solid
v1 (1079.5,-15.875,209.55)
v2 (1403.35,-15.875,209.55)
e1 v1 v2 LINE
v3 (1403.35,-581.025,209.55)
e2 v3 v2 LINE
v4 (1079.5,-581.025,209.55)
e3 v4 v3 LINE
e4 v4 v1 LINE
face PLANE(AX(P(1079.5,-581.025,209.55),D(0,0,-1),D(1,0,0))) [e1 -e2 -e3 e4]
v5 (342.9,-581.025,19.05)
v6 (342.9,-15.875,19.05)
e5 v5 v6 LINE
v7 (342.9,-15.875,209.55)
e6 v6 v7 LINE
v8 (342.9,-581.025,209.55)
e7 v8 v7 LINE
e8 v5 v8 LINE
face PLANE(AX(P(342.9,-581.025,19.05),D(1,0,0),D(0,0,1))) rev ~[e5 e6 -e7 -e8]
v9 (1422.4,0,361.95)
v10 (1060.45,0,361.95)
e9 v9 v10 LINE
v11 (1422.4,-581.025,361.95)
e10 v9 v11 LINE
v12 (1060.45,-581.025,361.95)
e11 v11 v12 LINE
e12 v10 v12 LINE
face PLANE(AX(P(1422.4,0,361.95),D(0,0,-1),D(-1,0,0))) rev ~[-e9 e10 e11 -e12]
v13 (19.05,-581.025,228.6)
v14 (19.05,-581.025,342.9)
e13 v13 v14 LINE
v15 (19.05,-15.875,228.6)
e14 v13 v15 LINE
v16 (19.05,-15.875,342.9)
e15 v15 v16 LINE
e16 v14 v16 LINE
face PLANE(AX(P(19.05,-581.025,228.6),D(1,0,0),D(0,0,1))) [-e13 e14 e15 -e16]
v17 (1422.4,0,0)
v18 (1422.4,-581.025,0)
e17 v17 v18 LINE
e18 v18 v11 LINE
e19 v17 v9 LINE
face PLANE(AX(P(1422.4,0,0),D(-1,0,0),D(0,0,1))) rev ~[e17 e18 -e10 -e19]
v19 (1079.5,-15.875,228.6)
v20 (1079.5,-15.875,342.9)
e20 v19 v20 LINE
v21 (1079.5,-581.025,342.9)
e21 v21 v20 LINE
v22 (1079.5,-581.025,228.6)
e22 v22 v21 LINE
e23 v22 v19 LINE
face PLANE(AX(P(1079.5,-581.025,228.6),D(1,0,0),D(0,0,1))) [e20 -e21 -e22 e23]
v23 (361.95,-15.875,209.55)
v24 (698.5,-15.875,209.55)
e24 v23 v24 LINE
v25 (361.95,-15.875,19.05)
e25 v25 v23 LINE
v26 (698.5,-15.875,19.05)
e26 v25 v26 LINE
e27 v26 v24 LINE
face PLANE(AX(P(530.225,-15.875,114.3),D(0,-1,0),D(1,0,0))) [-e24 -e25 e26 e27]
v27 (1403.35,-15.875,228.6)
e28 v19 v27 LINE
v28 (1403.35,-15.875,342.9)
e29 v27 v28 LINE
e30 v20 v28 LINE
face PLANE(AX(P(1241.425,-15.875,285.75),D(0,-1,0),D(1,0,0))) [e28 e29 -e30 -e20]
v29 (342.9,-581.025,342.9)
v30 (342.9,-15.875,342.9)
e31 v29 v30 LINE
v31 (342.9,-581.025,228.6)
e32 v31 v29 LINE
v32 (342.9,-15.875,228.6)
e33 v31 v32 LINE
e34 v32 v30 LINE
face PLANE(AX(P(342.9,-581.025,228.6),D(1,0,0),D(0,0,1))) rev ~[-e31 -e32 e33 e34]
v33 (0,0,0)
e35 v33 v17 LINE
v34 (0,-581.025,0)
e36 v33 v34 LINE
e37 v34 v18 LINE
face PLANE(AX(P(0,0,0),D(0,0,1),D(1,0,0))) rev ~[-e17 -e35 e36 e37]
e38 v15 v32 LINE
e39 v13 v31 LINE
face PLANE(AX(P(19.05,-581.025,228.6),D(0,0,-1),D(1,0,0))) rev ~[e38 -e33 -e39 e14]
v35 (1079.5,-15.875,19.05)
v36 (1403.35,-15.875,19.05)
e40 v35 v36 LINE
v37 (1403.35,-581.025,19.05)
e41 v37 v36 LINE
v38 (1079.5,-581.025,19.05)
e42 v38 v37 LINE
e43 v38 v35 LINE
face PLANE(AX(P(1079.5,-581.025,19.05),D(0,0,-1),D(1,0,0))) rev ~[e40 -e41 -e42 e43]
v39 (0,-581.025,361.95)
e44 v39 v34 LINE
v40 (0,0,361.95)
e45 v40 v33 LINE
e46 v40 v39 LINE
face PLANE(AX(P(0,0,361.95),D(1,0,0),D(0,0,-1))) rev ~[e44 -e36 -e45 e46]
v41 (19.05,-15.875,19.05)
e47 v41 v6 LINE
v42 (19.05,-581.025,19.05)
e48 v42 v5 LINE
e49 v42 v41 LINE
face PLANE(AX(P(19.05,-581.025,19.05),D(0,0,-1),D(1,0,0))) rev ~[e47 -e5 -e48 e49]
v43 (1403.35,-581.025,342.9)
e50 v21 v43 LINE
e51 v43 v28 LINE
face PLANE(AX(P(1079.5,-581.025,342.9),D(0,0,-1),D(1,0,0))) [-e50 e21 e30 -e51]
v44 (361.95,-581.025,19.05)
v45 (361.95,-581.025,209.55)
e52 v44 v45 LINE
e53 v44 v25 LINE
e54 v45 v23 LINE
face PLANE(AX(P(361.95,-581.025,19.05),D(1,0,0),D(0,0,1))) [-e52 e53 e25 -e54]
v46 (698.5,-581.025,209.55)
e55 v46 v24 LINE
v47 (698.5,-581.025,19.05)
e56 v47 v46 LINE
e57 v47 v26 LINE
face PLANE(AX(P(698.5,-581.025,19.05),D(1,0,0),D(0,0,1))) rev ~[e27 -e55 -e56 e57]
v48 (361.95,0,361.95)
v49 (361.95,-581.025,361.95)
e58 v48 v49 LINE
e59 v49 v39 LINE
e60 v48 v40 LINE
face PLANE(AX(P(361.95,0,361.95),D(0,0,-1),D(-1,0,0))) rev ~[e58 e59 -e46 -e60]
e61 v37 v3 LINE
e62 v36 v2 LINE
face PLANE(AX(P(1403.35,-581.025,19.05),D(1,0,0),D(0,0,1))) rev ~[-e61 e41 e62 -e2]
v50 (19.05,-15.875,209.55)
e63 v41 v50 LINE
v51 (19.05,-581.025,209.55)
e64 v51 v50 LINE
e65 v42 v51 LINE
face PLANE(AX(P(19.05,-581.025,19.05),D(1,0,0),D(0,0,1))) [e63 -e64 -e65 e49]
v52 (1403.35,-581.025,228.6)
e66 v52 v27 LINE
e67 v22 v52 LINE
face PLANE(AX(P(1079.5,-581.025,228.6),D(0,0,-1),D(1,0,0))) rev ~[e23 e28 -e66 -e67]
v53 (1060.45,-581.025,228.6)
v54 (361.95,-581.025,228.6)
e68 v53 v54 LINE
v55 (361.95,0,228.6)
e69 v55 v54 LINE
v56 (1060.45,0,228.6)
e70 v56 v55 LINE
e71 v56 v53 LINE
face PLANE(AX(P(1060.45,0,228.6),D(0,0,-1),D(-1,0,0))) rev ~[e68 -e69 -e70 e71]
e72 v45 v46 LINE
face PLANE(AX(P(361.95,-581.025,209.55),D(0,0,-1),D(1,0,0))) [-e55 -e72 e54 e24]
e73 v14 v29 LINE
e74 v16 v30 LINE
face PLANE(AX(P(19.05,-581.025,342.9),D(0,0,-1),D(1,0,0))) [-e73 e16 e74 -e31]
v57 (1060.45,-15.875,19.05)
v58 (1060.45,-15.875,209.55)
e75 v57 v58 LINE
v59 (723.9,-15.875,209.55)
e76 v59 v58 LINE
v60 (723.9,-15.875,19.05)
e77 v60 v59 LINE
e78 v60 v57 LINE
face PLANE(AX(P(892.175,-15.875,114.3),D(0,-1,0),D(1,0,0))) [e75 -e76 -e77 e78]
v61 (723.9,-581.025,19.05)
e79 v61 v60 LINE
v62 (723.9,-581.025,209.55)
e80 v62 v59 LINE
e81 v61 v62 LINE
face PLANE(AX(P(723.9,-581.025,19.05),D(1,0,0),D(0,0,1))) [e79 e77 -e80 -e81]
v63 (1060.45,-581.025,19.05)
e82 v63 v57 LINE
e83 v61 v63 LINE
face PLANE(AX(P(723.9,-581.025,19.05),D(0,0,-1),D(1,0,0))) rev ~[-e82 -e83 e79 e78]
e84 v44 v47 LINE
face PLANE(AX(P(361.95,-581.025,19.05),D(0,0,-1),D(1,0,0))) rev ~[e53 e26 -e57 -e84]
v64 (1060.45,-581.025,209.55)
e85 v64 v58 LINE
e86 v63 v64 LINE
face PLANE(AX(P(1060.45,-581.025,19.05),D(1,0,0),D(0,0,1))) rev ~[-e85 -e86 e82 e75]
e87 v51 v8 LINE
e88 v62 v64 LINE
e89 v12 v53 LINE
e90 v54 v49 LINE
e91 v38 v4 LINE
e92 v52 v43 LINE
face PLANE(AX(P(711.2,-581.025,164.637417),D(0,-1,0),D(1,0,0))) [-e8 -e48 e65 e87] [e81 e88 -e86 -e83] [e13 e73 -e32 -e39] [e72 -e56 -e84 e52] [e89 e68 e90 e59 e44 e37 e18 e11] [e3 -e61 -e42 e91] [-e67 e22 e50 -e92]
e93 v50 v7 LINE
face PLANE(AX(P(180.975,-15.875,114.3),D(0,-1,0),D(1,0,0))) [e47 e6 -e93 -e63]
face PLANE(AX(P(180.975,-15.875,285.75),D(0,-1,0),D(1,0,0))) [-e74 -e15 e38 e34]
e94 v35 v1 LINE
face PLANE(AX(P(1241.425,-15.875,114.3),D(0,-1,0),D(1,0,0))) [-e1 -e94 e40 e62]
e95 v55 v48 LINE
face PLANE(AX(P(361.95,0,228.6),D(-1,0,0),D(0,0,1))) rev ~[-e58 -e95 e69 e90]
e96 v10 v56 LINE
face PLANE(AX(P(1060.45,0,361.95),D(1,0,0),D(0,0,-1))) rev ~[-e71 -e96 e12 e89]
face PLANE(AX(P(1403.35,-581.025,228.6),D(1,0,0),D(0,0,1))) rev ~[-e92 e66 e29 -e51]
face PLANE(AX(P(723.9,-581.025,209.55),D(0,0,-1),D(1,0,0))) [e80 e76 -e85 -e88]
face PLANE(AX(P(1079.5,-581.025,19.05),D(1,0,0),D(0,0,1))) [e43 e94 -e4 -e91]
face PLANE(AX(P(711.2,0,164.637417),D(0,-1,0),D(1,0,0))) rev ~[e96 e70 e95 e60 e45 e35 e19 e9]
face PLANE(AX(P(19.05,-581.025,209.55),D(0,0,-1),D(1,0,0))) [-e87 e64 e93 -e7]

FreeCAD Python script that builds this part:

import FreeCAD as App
import Part
import Sketcher
from FreeCAD import Vector
Q = App.Units.Quantity


def add_polygon(sketch, points):
    """Adds a closed chain of lines whose ends are joined by coincident constraints."""
    first, n = sketch.GeometryCount, len(points)
    for a, b in zip(points, points[1:] + points[:1]):
        sketch.addGeometry(Part.LineSegment(App.Vector(*a, 0), App.Vector(*b, 0)), False)
    for i in range(n):
        sketch.addConstraint(Sketcher.Constraint("Coincident", first + i, 2, first + (i + 1) % n, 1))

doc = App.newDocument("Part")
body = doc.addObject("PartDesign::Body", "Body")

# Sketch on XZ plane
sketch1 = body.newObject("Sketcher::SketchObject", "Sketch")
sketch1.AttachmentSupport = (doc.getObject("XZ_Plane"), [""])
sketch1.MapMode = "FlatFace"
add_polygon(sketch1, [(0, 362), (0, 0), (1422, 0), (1422, 362), (1060, 362), (1060, 229), (362, 229), (362, 362)])  # lines 0-7
sketch1.addConstraint(Sketcher.Constraint("Vertical", 0))
sketch1.addConstraint(Sketcher.Constraint("Horizontal", 1))
sketch1.addConstraint(Sketcher.Constraint("Vertical", 2))
sketch1.addConstraint(Sketcher.Constraint("Horizontal", 3))
sketch1.addConstraint(Sketcher.Constraint("Vertical", 4))
sketch1.addConstraint(Sketcher.Constraint("Horizontal", 5))
sketch1.addConstraint(Sketcher.Constraint("Vertical", 6))
sketch1.addConstraint(Sketcher.Constraint("Horizontal", 7))
sketch1.addConstraint(Sketcher.Constraint("Coincident", 0, 2, -1, 1))
sketch1.addConstraint(Sketcher.Constraint("Horizontal", 3, 2, 6, 2))
sketch1.addConstraint(Sketcher.Constraint("Equal", 3, 7))
sketch1.addConstraint(Sketcher.Constraint("Equal", 7, 0))
sketch1.addConstraint(Sketcher.Constraint("DistanceX", 1, 1, 1, 2, Q("56 in")))
sketch1.addConstraint(Sketcher.Constraint("DistanceX", 5, 2, 5, 1, Q("27.5 in")))
sketch1.addConstraint(Sketcher.Constraint("DistanceY", -1, 1, 4, 2, Q("9 in")))
pad1 = body.newObject("PartDesign::Pad", "Pad")
pad1.Profile = sketch1
pad1.Length = Q("22.875 in")

# Sketch on XZ plane
sketch2 = body.newObject("Sketcher::SketchObject", "Sketch001")
sketch2.AttachmentSupport = (doc.getObject("XZ_Plane"), [""])
sketch2.MapMode = "FlatFace"
sketch2.AttachmentOffset = App.Placement(Vector(0, 0, 22.875 * 25.4), App.Rotation())
add_polygon(sketch2, [(19, 343), (19, 229), (343, 229), (343, 343)])  # lines 0-3
add_polygon(sketch2, [(19, 210), (19, 19), (343, 19), (343, 210)])  # lines 4-7
add_polygon(sketch2, [(362, 210), (362, 19), (698, 19), (698, 210)])  # lines 8-11
add_polygon(sketch2, [(724, 210), (724, 19), (1060, 19), (1060, 210)])  # lines 12-15
add_polygon(sketch2, [(1080, 210), (1080, 19), (1403, 19), (1403, 210)])  # lines 16-19
add_polygon(sketch2, [(1080, 343), (1080, 229), (1403, 229), (1403, 343)])  # lines 20-23
sketch2.addConstraint(Sketcher.Constraint("Vertical", 0))
sketch2.addConstraint(Sketcher.Constraint("Horizontal", 1))
sketch2.addConstraint(Sketcher.Constraint("Vertical", 2))
sketch2.addConstraint(Sketcher.Constraint("Horizontal", 3))
sketch2.addConstraint(Sketcher.Constraint("Vertical", 4))
sketch2.addConstraint(Sketcher.Constraint("Horizontal", 5))
sketch2.addConstraint(Sketcher.Constraint("Vertical", 6))
sketch2.addConstraint(Sketcher.Constraint("Horizontal", 7))
sketch2.addConstraint(Sketcher.Constraint("Vertical", 8))
sketch2.addConstraint(Sketcher.Constraint("Horizontal", 9))
sketch2.addConstraint(Sketcher.Constraint("Vertical", 10))
sketch2.addConstraint(Sketcher.Constraint("Horizontal", 11))
sketch2.addConstraint(Sketcher.Constraint("Vertical", 12))
sketch2.addConstraint(Sketcher.Constraint("Horizontal", 13))
sketch2.addConstraint(Sketcher.Constraint("Vertical", 14))
sketch2.addConstraint(Sketcher.Constraint("Horizontal", 15))
sketch2.addConstraint(Sketcher.Constraint("Vertical", 16))
sketch2.addConstraint(Sketcher.Constraint("Horizontal", 17))
sketch2.addConstraint(Sketcher.Constraint("Vertical", 18))
sketch2.addConstraint(Sketcher.Constraint("Horizontal", 19))
sketch2.addConstraint(Sketcher.Constraint("Vertical", 20))
sketch2.addConstraint(Sketcher.Constraint("Horizontal", 21))
sketch2.addConstraint(Sketcher.Constraint("Vertical", 22))
sketch2.addConstraint(Sketcher.Constraint("Horizontal", 23))
sketch2.addConstraint(Sketcher.Constraint("Horizontal", 5, 2, 8, 2))
sketch2.addConstraint(Sketcher.Constraint("Horizontal", 7, 2, 10, 2))
sketch2.addConstraint(Sketcher.Constraint("Horizontal", 9, 2, 12, 2))
sketch2.addConstraint(Sketcher.Constraint("Horizontal", 11, 2, 14, 2))
sketch2.addConstraint(Sketcher.Constraint("Horizontal", 13, 2, 16, 2))
sketch2.addConstraint(Sketcher.Constraint("Horizontal", 15, 2, 18, 2))
sketch2.addConstraint(Sketcher.Constraint("Horizontal", 1, 2, 20, 2))
sketch2.addConstraint(Sketcher.Constraint("Horizontal", 3, 2, 22, 2))
sketch2.addConstraint(Sketcher.Constraint("Vertical", 3, 2, 4, 2))
sketch2.addConstraint(Sketcher.Constraint("Vertical", 2, 2, 5, 2))
sketch2.addConstraint(Sketcher.Constraint("Vertical", 19, 2, 20, 2))
sketch2.addConstraint(Sketcher.Constraint("Vertical", 18, 2, 21, 2))
sketch2.addConstraint(Sketcher.Constraint("Equal", 11, 13))
sketch2.addConstraint(Sketcher.Constraint("Equal", 7, 17))
sketch2.addConstraint(Sketcher.Constraint("DistanceY", 0, 2, 0, 1, Q("4.5 in")))
sketch2.addConstraint(Sketcher.Constraint("DistanceY", 4, 2, 4, 1, Q("7.5 in")))
sketch2.addConstraint(Sketcher.Constraint("DistanceY", -1, 1, 0, 2, Q("9 in")))
sketch2.addConstraint(Sketcher.Constraint("DistanceX", 5, 2, 9, 2, Q("14 in")))
sketch2.addConstraint(Sketcher.Constraint("DistanceX", 9, 2, 12, 2, Q("1 in")))
sketch2.addConstraint(Sketcher.Constraint("DistanceX", 12, 2, 16, 2, Q("14 in")))
sketch2.addConstraint(Sketcher.Constraint("DistanceX", 1, 1, 1, 2, Q("12.75 in")))
sketch2.addConstraint(Sketcher.Constraint("DistanceX", 9, 1, 9, 2, Q("13.25 in")))
sketch2.addConstraint(Sketcher.Constraint("DistanceX", -1, 1, 1, 2, Q("13.5 in")))
sketch2.addConstraint(Sketcher.Constraint("DistanceY", -1, 1, 4, 2, Q("0.75 in")))
pocket1 = body.newObject("PartDesign::Pocket", "Pocket")
pocket1.Profile = sketch2
pocket1.Length = Q("22.25 in")

doc.recompute()
